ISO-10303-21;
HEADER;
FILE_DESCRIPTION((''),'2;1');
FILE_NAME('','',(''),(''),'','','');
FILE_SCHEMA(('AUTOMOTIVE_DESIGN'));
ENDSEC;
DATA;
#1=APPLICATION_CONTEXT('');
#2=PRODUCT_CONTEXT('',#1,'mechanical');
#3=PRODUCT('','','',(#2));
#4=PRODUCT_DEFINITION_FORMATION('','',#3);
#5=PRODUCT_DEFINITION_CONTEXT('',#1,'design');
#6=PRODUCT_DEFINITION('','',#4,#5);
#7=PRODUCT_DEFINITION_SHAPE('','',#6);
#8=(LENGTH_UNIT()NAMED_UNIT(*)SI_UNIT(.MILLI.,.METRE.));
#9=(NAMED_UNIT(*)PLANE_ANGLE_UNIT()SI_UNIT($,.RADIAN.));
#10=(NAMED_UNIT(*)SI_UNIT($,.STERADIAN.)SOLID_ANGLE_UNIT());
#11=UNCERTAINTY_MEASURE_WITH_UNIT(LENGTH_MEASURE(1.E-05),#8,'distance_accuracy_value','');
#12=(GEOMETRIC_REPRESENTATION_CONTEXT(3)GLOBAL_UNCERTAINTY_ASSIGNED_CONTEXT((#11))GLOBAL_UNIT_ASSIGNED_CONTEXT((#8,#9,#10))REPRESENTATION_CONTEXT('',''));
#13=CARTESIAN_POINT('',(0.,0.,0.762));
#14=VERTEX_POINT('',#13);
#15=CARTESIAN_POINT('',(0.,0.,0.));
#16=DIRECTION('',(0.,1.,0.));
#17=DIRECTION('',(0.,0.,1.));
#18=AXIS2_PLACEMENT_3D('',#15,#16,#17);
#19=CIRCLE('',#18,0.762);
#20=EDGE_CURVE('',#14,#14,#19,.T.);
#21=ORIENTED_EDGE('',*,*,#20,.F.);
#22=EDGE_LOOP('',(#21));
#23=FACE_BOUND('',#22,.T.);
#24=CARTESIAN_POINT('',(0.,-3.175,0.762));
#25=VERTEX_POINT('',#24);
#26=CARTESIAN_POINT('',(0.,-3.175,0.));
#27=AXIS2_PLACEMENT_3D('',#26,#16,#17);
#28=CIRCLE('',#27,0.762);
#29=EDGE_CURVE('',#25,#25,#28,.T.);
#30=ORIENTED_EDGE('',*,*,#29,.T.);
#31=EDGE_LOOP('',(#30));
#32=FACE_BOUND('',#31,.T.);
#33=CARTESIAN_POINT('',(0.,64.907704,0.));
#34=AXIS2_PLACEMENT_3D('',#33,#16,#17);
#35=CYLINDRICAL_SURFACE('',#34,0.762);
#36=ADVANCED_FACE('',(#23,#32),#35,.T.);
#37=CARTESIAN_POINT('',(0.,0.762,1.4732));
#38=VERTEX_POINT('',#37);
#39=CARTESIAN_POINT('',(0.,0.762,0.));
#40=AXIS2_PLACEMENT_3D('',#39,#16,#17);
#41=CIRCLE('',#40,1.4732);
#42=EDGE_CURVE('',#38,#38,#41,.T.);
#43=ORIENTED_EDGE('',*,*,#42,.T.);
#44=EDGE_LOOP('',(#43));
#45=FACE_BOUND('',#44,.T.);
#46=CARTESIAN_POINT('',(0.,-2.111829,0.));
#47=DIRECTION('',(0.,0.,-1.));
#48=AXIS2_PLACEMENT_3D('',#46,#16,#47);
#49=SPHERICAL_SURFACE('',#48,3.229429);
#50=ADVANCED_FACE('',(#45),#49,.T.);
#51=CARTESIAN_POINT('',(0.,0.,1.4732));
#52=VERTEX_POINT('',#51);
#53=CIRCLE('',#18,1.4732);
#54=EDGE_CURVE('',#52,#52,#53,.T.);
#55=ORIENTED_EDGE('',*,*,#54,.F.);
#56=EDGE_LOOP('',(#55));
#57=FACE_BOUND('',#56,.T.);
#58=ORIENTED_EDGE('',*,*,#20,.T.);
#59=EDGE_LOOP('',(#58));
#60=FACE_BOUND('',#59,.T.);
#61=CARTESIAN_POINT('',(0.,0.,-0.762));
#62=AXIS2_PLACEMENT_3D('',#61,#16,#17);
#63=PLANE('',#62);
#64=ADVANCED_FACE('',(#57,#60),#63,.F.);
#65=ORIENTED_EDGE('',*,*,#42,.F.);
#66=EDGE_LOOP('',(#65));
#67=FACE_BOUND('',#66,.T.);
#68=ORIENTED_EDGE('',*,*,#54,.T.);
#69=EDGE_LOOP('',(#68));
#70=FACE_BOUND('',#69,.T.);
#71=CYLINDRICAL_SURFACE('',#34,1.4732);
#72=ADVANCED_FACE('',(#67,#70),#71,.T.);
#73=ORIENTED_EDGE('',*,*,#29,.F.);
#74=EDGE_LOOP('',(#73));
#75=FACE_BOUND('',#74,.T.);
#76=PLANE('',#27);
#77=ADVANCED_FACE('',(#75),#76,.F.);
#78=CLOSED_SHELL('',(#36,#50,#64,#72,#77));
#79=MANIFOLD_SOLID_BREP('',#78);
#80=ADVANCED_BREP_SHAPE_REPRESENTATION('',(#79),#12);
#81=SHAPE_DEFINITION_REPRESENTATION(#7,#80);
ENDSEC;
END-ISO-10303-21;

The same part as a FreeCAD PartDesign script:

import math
import FreeCAD as App
import Part
import Sketcher
Q = App.Units.Quantity

doc = App.newDocument("Part")
params = doc.addObject("Spreadsheet::Sheet", "Params")
for row, (alias, value) in enumerate([
    ("sketch1_width", "0.03 in"),
    ("sketch1_width2", "0.169 in"),
    ("sketch1_width3", "0.125 in"),
    ("sketch1_height", "0.028 in"),
    ("revolution_angle", "360 deg"),
], start=1):
    params.set(f"A{row}", alias)
    params.set(f"B{row}", "=" + value)
    params.setAlias(f"B{row}", alias)

body = doc.addObject("PartDesign::Body", "Body")

sketch1 = body.newObject("Sketcher::SketchObject", "Sketch")
sketch1.AttachmentSupport = (doc.getObject("YZ_Plane"), [""])
sketch1.MapMode = "FlatFace"
sketch1.addGeometry(Part.LineSegment(App.Vector(1.1, 0, 0), App.Vector(-3.2, 0, 0)), False)
sketch1.addGeometry(Part.LineSegment(App.Vector(-3.2, 0, 0), App.Vector(-3.2, -0.8, 0)), False)
sketch1.addGeometry(Part.LineSegment(App.Vector(-3.2, -0.8, 0), App.Vector(0, -0.8, 0)), False)
sketch1.addGeometry(Part.LineSegment(App.Vector(0, -0.8, 0), App.Vector(0, -1.5, 0)), False)
sketch1.addGeometry(Part.LineSegment(App.Vector(0, -1.5, 0), App.Vector(0.8, -1.5, 0)), False)
sketch1.addGeometry(Part.ArcOfCircle(Part.Circle(App.Vector(-2.1, 0, 0), App.Vector(0, 0, 1), 3.2), math.radians(-27), math.radians(0)), False)
sketch1.addConstraint(Sketcher.Constraint("Coincident", 0, 2, 1, 1))
sketch1.addConstraint(Sketcher.Constraint("Coincident", 1, 2, 2, 1))
sketch1.addConstraint(Sketcher.Constraint("Coincident", 2, 2, 3, 1))
sketch1.addConstraint(Sketcher.Constraint("Coincident", 3, 2, 4, 1))
sketch1.addConstraint(Sketcher.Constraint("Coincident", 4, 2, 5, 1))
sketch1.addConstraint(Sketcher.Constraint("Coincident", 5, 2, 0, 1))
sketch1.addConstraint(Sketcher.Constraint("Horizontal", 0))
sketch1.addConstraint(Sketcher.Constraint("Vertical", 1))
sketch1.addConstraint(Sketcher.Constraint("Horizontal", 2))
sketch1.addConstraint(Sketcher.Constraint("Vertical", 3))
sketch1.addConstraint(Sketcher.Constraint("Horizontal", 4))
sketch1.addConstraint(Sketcher.Constraint("PointOnObject", 5, 3, -1))
sketch1.addConstraint(Sketcher.Constraint("PointOnObject", 0, 2, -1))
sketch1.addConstraint(Sketcher.Constraint("PointOnObject", 2, 2, -2))
sketch1.addConstraint(Sketcher.Constraint("Equal", 4, 1))
sketch1.addConstraint(Sketcher.Constraint("DistanceX", 4, 1, 4, 2, Q("0.03 in")))
sketch1.addConstraint(Sketcher.Constraint("DistanceX", 0, 2, 0, 1, Q("0.169 in")))
sketch1.addConstraint(Sketcher.Constraint("DistanceX", 2, 1, 2, 2, Q("0.125 in")))
sketch1.addConstraint(Sketcher.Constraint("DistanceY", 3, 2, 3, 1, Q("0.028 in")))
sketch1.setExpression("Constraints[15]", "Params.sketch1_width")
sketch1.setExpression("Constraints[16]", "Params.sketch1_width2")
sketch1.setExpression("Constraints[17]", "Params.sketch1_width3")
sketch1.setExpression("Constraints[18]", "Params.sketch1_height")
revolution = body.newObject("PartDesign::Revolution", "Revolution")
revolution.Profile = sketch1
revolution.ReferenceAxis = (sketch1, ["H_Axis"])
revolution.setExpression("Angle", "Params.revolution_angle")

doc.recompute()
